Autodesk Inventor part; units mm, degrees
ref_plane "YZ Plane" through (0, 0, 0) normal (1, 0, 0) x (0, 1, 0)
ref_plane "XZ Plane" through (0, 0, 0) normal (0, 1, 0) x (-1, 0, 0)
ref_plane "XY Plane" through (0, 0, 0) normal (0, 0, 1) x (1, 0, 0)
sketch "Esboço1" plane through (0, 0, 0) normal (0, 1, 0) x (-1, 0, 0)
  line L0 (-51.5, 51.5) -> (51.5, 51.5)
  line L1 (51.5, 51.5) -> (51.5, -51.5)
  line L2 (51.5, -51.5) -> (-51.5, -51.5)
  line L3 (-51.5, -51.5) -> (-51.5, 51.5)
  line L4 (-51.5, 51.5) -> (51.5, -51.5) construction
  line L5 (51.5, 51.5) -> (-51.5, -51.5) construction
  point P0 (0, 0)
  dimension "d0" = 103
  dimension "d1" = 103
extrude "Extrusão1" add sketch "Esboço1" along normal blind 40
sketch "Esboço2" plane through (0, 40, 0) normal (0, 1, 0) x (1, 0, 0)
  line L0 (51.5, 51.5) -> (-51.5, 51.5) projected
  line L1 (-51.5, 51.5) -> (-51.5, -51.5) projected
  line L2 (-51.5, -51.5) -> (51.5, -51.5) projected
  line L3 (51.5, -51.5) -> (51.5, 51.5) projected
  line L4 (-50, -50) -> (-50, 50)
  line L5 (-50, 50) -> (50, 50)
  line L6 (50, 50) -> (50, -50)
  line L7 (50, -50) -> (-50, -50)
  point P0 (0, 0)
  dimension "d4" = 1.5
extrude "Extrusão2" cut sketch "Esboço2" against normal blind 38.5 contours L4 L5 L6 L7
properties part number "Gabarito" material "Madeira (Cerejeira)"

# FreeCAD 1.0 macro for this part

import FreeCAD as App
import Part
import Sketcher

V = App.Vector
Q = App.Units.Quantity


def add_polygon(sketch, points):
    """Adds a closed chain of lines whose ends are joined by coincident constraints."""
    first, n = sketch.GeometryCount, len(points)
    for a, b in zip(points, points[1:] + points[:1]):
        sketch.addGeometry(Part.LineSegment(App.Vector(*a, 0), App.Vector(*b, 0)), False)
    for i in range(n):
        sketch.addConstraint(Sketcher.Constraint("Coincident", first + i, 2, first + (i + 1) % n, 1))

doc = App.newDocument("Part")
body = doc.addObject("PartDesign::Body", "Body")

# Sketch on XZ plane
sketch1 = body.newObject("Sketcher::SketchObject", "Sketch")
sketch1.AttachmentSupport = (doc.getObject("XZ_Plane"), [""])
sketch1.MapMode = "FlatFace"
add_polygon(sketch1, [(-51.5, 51.5), (51.5, 51.5), (51.5, -51.5), (-51.5, -51.5)])  # lines 0-3
sketch1.addConstraint([
    Sketcher.Constraint("Horizontal", 0),
    Sketcher.Constraint("Vertical", 1),
    Sketcher.Constraint("Horizontal", 2),
    Sketcher.Constraint("Vertical", 3),
    Sketcher.Constraint("Symmetric", 0, 2, 2, 2, -1, 1),
    Sketcher.Constraint("Equal", 2, 1),
    Sketcher.Constraint("DistanceX", 0, 1, 0, 2, Q("103 mm")),
])
pad1 = body.newObject("PartDesign::Pad", "Pad")
pad1.Profile = sketch1
pad1.Length = 40
pad1.Reversed = True

# Sketch on XZ plane
sketch2 = body.newObject("Sketcher::SketchObject", "Sketch001")
sketch2.AttachmentSupport = (doc.getObject("XZ_Plane"), [""])
sketch2.MapMode = "FlatFace"
sketch2.AttachmentOffset = App.Placement(V(0, 0, -40), App.Rotation())
add_polygon(sketch2, [(-50, -50), (-50, 50), (50, 50), (50, -50)])  # lines 0-3
sketch2.addConstraint([
    Sketcher.Constraint("Vertical", 0),
    Sketcher.Constraint("Horizontal", 1),
    Sketcher.Constraint("Vertical", 2),
    Sketcher.Constraint("Horizontal", 3),
    Sketcher.Constraint("Symmetric", 0, 2, 2, 2, -1, 1),
    Sketcher.Constraint("Equal", 3, 0),
    Sketcher.Constraint("DistanceX", 1, 1, 1, 2, Q("100 mm")),
])
pocket1 = body.newObject("PartDesign::Pocket", "Pocket")
pocket1.Profile = sketch2
pocket1.Length = 38.5
pocket1.Reversed = True

doc.recompute()
